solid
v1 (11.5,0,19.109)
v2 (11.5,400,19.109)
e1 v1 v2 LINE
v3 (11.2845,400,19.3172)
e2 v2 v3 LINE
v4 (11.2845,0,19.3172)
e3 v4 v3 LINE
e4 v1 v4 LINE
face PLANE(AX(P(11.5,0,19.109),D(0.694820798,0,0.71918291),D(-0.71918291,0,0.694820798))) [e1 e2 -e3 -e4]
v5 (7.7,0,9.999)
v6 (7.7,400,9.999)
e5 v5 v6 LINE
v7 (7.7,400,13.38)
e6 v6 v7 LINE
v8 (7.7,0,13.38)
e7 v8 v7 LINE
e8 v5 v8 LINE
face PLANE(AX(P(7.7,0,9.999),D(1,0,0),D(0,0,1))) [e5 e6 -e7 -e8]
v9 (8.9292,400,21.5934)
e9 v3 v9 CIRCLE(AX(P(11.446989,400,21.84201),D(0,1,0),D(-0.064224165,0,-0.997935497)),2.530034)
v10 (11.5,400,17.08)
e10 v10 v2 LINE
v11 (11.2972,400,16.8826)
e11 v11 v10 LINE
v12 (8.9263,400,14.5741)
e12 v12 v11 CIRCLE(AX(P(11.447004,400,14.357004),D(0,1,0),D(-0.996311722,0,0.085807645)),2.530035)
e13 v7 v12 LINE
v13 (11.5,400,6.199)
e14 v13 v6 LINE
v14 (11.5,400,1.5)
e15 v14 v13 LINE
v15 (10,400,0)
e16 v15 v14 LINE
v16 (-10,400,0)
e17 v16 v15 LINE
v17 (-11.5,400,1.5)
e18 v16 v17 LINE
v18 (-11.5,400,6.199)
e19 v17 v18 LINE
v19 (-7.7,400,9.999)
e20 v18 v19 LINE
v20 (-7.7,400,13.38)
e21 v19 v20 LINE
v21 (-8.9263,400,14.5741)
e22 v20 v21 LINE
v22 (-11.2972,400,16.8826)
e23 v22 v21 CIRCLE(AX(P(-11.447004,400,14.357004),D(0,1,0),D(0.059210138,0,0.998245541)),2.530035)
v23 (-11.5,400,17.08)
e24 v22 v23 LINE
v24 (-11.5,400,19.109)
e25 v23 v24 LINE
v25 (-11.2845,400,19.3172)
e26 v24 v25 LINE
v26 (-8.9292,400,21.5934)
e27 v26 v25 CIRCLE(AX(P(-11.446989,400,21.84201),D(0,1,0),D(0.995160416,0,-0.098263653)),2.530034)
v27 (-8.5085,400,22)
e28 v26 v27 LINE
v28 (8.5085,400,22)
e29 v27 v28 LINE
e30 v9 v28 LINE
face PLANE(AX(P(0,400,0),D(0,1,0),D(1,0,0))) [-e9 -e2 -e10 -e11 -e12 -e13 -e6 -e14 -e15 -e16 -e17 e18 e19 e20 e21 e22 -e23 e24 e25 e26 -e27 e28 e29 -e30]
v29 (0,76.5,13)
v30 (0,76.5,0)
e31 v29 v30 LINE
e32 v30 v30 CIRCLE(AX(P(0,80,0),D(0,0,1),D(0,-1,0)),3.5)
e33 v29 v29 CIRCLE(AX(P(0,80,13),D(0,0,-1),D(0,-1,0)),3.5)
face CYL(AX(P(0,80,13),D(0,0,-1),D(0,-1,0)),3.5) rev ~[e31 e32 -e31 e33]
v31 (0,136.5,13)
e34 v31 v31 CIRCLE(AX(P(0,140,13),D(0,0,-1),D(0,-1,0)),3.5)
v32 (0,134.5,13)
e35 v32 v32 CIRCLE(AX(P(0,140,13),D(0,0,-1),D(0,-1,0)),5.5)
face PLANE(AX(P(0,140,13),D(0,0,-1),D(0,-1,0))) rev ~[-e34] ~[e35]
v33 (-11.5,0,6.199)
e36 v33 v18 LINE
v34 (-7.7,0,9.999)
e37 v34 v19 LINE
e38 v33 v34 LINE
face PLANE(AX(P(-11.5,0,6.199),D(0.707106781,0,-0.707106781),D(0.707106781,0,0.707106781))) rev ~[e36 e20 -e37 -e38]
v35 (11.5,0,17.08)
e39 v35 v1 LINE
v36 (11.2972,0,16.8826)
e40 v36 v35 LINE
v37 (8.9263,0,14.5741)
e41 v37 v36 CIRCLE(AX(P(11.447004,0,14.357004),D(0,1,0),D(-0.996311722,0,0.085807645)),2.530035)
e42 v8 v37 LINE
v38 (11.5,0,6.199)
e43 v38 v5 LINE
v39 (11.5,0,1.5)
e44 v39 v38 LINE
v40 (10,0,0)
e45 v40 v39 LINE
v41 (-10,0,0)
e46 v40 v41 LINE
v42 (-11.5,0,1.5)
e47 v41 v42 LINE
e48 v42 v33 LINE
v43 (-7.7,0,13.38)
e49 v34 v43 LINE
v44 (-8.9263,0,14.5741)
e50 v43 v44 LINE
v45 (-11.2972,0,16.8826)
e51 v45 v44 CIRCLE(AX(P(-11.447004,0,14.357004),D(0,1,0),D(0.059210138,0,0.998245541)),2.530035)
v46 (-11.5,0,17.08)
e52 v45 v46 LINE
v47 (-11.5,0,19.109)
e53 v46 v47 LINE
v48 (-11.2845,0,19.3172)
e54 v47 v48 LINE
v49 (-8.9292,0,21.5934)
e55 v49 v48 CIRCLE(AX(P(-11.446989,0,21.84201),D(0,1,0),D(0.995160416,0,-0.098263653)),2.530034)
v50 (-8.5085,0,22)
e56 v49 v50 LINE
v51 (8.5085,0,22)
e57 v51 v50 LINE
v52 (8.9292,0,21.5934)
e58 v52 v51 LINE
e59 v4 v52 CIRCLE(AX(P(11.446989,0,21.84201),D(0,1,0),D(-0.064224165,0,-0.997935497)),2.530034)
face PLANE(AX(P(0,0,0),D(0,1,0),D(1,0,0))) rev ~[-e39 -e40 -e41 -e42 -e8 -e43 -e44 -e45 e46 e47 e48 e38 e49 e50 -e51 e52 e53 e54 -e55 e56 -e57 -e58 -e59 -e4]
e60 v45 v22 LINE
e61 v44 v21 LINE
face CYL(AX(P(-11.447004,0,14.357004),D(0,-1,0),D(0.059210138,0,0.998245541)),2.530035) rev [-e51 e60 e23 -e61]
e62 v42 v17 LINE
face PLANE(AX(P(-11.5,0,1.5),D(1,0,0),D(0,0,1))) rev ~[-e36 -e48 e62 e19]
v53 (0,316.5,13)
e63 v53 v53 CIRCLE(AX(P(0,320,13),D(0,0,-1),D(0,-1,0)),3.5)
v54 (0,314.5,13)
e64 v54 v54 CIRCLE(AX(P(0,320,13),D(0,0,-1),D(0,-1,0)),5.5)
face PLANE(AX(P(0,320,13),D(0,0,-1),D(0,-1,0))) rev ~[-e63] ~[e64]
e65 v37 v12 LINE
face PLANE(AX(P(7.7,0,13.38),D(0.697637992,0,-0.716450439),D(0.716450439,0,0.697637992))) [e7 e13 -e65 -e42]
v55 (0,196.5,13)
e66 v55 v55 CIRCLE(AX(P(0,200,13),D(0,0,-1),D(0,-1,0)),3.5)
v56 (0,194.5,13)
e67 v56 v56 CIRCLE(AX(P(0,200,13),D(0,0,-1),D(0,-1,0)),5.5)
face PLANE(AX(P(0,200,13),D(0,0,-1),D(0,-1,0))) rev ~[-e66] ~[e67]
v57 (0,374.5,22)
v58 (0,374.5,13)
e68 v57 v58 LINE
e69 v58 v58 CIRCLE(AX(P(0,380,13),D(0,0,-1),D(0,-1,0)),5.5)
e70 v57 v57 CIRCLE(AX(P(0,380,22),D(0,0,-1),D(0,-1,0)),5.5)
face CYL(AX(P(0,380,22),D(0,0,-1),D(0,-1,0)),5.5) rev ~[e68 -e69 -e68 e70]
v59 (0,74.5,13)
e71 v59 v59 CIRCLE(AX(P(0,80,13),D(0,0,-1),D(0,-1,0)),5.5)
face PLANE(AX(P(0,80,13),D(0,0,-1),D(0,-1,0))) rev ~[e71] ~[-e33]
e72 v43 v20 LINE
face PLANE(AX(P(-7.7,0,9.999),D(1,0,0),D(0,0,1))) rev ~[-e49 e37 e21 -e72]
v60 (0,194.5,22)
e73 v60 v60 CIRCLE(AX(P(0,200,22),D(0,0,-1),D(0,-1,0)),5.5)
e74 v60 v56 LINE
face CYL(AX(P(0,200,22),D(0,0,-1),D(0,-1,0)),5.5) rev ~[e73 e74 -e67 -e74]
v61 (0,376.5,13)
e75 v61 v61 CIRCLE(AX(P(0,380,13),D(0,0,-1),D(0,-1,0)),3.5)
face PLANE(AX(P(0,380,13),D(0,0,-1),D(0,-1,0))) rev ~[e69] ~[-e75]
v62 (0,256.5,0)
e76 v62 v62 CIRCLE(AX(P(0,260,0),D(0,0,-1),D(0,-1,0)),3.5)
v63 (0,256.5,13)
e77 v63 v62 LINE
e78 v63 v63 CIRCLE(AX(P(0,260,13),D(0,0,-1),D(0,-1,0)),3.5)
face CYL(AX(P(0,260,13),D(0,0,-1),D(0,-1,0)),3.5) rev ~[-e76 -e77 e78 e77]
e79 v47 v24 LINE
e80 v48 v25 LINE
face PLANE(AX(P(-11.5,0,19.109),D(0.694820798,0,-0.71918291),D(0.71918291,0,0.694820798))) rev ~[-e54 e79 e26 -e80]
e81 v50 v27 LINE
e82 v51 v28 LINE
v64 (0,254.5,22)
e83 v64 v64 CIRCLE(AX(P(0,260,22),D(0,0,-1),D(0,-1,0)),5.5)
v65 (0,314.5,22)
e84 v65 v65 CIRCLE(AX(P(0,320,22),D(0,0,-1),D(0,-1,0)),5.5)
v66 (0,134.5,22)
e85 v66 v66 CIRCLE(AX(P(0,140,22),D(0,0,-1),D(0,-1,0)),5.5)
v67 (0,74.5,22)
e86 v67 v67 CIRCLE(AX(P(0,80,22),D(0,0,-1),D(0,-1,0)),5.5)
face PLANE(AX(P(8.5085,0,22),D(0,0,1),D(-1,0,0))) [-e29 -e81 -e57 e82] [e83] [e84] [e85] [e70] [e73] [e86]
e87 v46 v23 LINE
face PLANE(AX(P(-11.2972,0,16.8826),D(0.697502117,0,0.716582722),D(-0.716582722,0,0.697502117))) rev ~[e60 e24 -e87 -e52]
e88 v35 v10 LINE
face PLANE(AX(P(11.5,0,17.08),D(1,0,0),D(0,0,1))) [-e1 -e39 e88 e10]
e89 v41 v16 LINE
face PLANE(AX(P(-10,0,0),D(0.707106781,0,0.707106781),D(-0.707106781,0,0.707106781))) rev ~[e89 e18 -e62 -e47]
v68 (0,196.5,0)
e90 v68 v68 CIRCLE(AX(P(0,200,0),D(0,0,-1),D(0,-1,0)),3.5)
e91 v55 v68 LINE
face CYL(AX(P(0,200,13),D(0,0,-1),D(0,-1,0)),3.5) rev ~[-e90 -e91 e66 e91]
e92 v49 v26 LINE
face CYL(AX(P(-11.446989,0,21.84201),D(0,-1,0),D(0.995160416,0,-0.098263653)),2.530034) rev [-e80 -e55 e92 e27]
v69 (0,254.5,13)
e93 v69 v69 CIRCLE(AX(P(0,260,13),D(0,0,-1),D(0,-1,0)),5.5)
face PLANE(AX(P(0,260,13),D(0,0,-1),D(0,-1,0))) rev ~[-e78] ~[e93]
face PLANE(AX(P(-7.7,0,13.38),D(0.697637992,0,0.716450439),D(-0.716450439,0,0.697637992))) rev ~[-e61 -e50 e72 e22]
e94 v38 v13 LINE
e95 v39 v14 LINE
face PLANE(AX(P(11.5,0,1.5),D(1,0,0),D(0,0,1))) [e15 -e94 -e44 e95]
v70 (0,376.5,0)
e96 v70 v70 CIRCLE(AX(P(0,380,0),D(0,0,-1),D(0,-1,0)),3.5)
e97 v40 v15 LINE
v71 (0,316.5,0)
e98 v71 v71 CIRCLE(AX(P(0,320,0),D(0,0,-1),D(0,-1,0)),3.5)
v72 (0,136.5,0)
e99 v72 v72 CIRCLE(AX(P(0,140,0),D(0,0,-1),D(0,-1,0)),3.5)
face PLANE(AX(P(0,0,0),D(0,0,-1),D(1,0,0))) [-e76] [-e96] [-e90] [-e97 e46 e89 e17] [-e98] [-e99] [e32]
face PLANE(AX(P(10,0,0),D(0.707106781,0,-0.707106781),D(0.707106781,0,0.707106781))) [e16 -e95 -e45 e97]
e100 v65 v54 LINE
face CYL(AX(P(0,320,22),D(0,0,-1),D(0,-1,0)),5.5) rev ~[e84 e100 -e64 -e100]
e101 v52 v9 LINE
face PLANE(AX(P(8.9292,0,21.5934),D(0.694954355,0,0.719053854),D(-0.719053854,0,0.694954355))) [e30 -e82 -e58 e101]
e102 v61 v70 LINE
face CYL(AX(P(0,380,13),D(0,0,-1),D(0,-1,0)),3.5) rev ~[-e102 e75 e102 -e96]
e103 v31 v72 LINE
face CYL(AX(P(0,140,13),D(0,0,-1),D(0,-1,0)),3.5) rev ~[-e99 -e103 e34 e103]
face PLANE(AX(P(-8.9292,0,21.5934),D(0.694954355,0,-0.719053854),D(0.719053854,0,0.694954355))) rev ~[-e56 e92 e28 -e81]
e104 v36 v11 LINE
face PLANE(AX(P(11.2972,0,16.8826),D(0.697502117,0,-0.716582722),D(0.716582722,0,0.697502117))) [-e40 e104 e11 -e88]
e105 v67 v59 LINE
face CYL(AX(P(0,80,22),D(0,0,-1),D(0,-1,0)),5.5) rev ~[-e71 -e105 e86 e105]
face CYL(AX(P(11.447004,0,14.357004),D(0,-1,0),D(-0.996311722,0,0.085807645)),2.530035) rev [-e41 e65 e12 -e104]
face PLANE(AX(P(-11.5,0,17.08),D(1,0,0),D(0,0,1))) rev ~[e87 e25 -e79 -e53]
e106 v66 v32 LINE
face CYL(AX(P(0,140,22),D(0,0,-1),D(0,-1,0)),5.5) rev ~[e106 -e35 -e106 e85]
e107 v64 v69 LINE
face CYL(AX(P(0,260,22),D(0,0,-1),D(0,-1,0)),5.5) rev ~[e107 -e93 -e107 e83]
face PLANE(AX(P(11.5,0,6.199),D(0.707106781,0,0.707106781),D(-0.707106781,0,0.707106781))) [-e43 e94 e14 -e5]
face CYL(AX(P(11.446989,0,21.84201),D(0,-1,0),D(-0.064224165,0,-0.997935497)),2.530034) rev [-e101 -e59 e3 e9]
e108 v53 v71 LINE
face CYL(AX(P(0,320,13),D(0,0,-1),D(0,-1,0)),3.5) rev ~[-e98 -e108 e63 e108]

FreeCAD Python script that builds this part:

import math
import FreeCAD as App
import Part
import Sketcher
from FreeCAD import Vector

doc = App.newDocument("Part")
body = doc.addObject("PartDesign::Body", "Body")

sketch1 = body.newObject("Sketcher::SketchObject", "Sketch")
sketch1.AttachmentSupport = (doc.getObject("XZ_Plane"), [""])
sketch1.MapMode = "FlatFace"
sketch1.addGeometry([
    Part.LineSegment(Vector(10, 0, 0), Vector(-10, 0, 0)),
    Part.LineSegment(Vector(-10, 0, 0), Vector(-11.5, 1.5, 0)),
    Part.LineSegment(Vector(-11.5, 1.5, 0), Vector(-11.5, 6.199, 0)),
    Part.LineSegment(Vector(-11.5, 6.199, 0), Vector(-7.7, 9.999, 0)),
    Part.LineSegment(Vector(-7.7, 9.999, 0), Vector(-7.7, 13.38, 0)),
    Part.LineSegment(Vector(-7.7, 13.38, 0), Vector(-8.9263, 14.5741, 0)),
    Part.ArcOfCircle(Part.Circle(Vector(-11.447, 14.357, 0), Vector(0, 0, 1), 2.530039), math.radians(4.922559), math.radians(86.605613)),
    Part.LineSegment(Vector(-11.2972, 16.8826, 0), Vector(-11.5, 17.08, 0)),
    Part.LineSegment(Vector(-11.5, 17.08, 0), Vector(-11.5, 19.109, 0)),
    Part.LineSegment(Vector(-11.5, 19.109, 0), Vector(-11.2845, 19.3172, 0)),
    Part.ArcOfCircle(Part.Circle(Vector(-11.447, 21.842, 0), Vector(0, 0, 1), 2.530043), math.radians(-86.317435), math.radians(-5.638936)),
    Part.LineSegment(Vector(-8.9292, 21.5934, 0), Vector(-8.5085, 22, 0)),
    Part.LineSegment(Vector(-8.5085, 22, 0), Vector(8.5085, 22, 0)),
    Part.LineSegment(Vector(8.5085, 22, 0), Vector(8.9292, 21.5934, 0)),
    Part.ArcOfCircle(Part.Circle(Vector(11.447, 21.842, 0), Vector(0, 0, 1), 2.530024), math.radians(-174.361064), math.radians(-93.682565)),
    Part.LineSegment(Vector(11.2845, 19.3172, 0), Vector(11.5, 19.109, 0)),
    Part.LineSegment(Vector(11.5, 19.109, 0), Vector(11.5, 17.08, 0)),
    Part.LineSegment(Vector(11.5, 17.08, 0), Vector(11.2972, 16.8826, 0)),
    Part.ArcOfCircle(Part.Circle(Vector(11.447, 14.357, 0), Vector(0, 0, 1), 2.530032), math.radians(93.394387), math.radians(175.077441)),
    Part.LineSegment(Vector(8.9263, 14.5741, 0), Vector(7.7, 13.38, 0)),
    Part.LineSegment(Vector(7.7, 13.38, 0), Vector(7.7, 9.999, 0)),
    Part.LineSegment(Vector(7.7, 9.999, 0), Vector(11.5, 6.199, 0)),
    Part.LineSegment(Vector(11.5, 6.199, 0), Vector(11.5, 1.5, 0)),
    Part.LineSegment(Vector(11.5, 1.5, 0), Vector(10, 0, 0)),
], False)
sketch1.addConstraint([
    Sketcher.Constraint("Coincident", 0, 2, 1, 1),
    Sketcher.Constraint("Coincident", 1, 2, 2, 1),
    Sketcher.Constraint("Coincident", 2, 2, 3, 1),
    Sketcher.Constraint("Coincident", 3, 2, 4, 1),
    Sketcher.Constraint("Coincident", 4, 2, 5, 1),
    Sketcher.Constraint("Coincident", 5, 2, 6, 1),
    Sketcher.Constraint("Coincident", 6, 2, 7, 1),
    Sketcher.Constraint("Coincident", 7, 2, 8, 1),
    Sketcher.Constraint("Coincident", 8, 2, 9, 1),
    Sketcher.Constraint("Coincident", 9, 2, 10, 1),
    Sketcher.Constraint("Coincident", 10, 2, 11, 1),
    Sketcher.Constraint("Coincident", 11, 2, 12, 1),
    Sketcher.Constraint("Coincident", 12, 2, 13, 1),
    Sketcher.Constraint("Coincident", 13, 2, 14, 1),
    Sketcher.Constraint("Coincident", 14, 2, 15, 1),
    Sketcher.Constraint("Coincident", 15, 2, 16, 1),
    Sketcher.Constraint("Coincident", 16, 2, 17, 1),
    Sketcher.Constraint("Coincident", 17, 2, 18, 1),
    Sketcher.Constraint("Coincident", 18, 2, 19, 1),
    Sketcher.Constraint("Coincident", 19, 2, 20, 1),
    Sketcher.Constraint("Coincident", 20, 2, 21, 1),
    Sketcher.Constraint("Coincident", 21, 2, 22, 1),
    Sketcher.Constraint("Coincident", 22, 2, 23, 1),
    Sketcher.Constraint("Coincident", 23, 2, 0, 1),
    Sketcher.Constraint("Horizontal", 0),
    Sketcher.Constraint("Vertical", 2),
    Sketcher.Constraint("Vertical", 4),
    Sketcher.Constraint("Vertical", 8),
    Sketcher.Constraint("Horizontal", 12),
    Sketcher.Constraint("Vertical", 16),
    Sketcher.Constraint("Vertical", 20),
    Sketcher.Constraint("Vertical", 22),
    Sketcher.Constraint("Equal", 6, 10),
    Sketcher.Constraint("Equal", 10, 14),
    Sketcher.Constraint("Equal", 14, 18),
    Sketcher.Constraint("Symmetric", 0, 2, 23, 2, -1, 1),
    Sketcher.Constraint("Symmetric", 10, 3, 14, 3, -2),
    Sketcher.Constraint("Symmetric", 6, 3, 18, 3, -2),
    Sketcher.Constraint("Symmetric", 8, 2, 15, 2, -2),
    Sketcher.Constraint("Symmetric", 4, 2, 19, 2, -2),
    Sketcher.Constraint("Symmetric", 2, 2, 21, 2, -2),
    Sketcher.Constraint("Perpendicular", 1, 3),
    Sketcher.Constraint("Parallel", 5, 7),
    Sketcher.Constraint("Parallel", 9, 11),
    Sketcher.Constraint("Parallel", 13, 15),
    Sketcher.Constraint("Parallel", 17, 19),
    Sketcher.Constraint("Perpendicular", 3, 21),
    Sketcher.Constraint("Perpendicular", 21, 23),
    Sketcher.Constraint("Horizontal", 10, 2, 13, 2),
    Sketcher.Constraint("Horizontal", 9, 2, 14, 2),
    Sketcher.Constraint("Horizontal", 7, 2, 16, 2),
    Sketcher.Constraint("Horizontal", 6, 2, 17, 2),
    Sketcher.Constraint("Horizontal", 3, 2, 20, 2),
    Sketcher.Constraint("Vertical", 6, 3, 10, 3),
    Sketcher.Constraint("Vertical", 2, 2, 7, 2),
    Sketcher.Constraint("Radius", 6, 2.53),
    Sketcher.Constraint("DistanceX", 0, 2, -1, 1, 10.0),
    Sketcher.Constraint("DistanceY", -1, 1, 11, 2, 22.0),
    Sketcher.Constraint("DistanceY", -1, 1, 1, 2, 1.5),
    Sketcher.Constraint("DistanceX", 2, 2, 3, 2, 3.8),
    Sketcher.Constraint("DistanceY", 4, 2, 7, 2, 3.7),
    Sketcher.Constraint("DistanceY", 4, 1, 4, 2, 3.381),
    Sketcher.Constraint("DistanceY", 8, 1, 8, 2, 2.029),
    Sketcher.Constraint("DistanceX", 6, 3, -1, 1, 11.447),
    Sketcher.Constraint("DistanceY", 6, 3, 10, 3, 7.485),
    Sketcher.Constraint("DistanceY", 10, 3, 11, 2, 0.158),
    Sketcher.Constraint("DistanceY", 8, 2, 11, 2, 2.891),
    Sketcher.Constraint("DistanceX", 11, 2, -1, 1, 8.5085),
    Sketcher.Constraint("Distance", 7, 0.283),
    Sketcher.Constraint("Distance", 11, 0.585),
])
pad1 = body.newObject("PartDesign::Pad", "Pad")
pad1.Profile = sketch1
pad1.Length = 400
pad1.Reversed = True

sketch2 = body.newObject("Sketcher::SketchObject", "Sketch001")
sketch2.AttachmentSupport = (doc.getObject("XY_Plane"), [""])
sketch2.MapMode = "FlatFace"
sketch2.AttachmentOffset = App.Placement(Vector(0, 0, 22), App.Rotation())
sketch2.addGeometry(Part.Circle(Vector(0, 80, 0), Vector(0, 0, 1), 3.5), False)
sketch2.addConstraint([
    Sketcher.Constraint("PointOnObject", 0, 3, -2),
    Sketcher.Constraint("Diameter", 0, 7.0),
    Sketcher.Constraint("DistanceY", -1, 1, 0, 3, 80.0),
])
doc.recompute()
hole = body.newObject("PartDesign::Hole", "Hole")
hole.Profile = sketch2
hole.ThreadType = "None"
hole.Diameter = 7
hole.DepthType = "Dimension"
hole.Depth = 22
hole.DrillPoint = "Angled"
hole.DrillPointAngle = 118
hole.HoleCutType = "Counterbore"
hole.HoleCutDiameter = 11
hole.HoleCutDepth = 9
doc.recompute()

linearpattern = body.newObject("PartDesign::LinearPattern", "LinearPattern")
linearpattern.Originals = [hole]
linearpattern.Direction = (doc.getObject("Y_Axis"), [""])
linearpattern.Mode = "offset"
linearpattern.Offset = 60
linearpattern.Occurrences = 7
body.Tip = linearpattern

doc.recompute()
